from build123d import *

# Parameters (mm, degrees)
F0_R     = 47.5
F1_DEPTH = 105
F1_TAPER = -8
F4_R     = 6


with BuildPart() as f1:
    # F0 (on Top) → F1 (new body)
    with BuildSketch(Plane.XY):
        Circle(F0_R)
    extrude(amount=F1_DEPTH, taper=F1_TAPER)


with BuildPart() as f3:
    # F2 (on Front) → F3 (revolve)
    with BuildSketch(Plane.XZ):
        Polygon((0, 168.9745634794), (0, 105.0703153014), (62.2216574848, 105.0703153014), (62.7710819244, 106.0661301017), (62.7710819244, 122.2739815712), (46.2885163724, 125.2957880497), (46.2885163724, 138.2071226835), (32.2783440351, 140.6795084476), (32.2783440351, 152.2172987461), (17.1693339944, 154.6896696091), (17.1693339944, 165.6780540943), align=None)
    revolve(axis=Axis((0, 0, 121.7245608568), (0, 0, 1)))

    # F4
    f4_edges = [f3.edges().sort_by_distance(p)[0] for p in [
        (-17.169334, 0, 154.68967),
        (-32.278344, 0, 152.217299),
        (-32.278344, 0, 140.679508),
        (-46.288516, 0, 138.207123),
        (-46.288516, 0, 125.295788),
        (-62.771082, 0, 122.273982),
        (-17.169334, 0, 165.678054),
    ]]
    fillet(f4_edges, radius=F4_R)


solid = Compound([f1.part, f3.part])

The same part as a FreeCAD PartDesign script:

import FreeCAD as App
import Part
import Sketcher

V = App.Vector
Q = App.Units.Quantity


def edges_at(feature, points):
    """Names of the edges that pass closest to the given points."""
    edges = feature.Shape.Edges
    near = lambda p: min(range(len(edges)), key=lambda i: edges[i].distToShape(Part.Vertex(*p))[0])
    return sorted({f"Edge{near(p) + 1}" for p in points})

doc = App.newDocument("Part")
body = doc.addObject("PartDesign::Body", "Body")

sketch1 = body.newObject("Sketcher::SketchObject", "Sketch")
sketch1.AttachmentSupport = (doc.getObject("XY_Plane"), [""])
sketch1.MapMode = "FlatFace"
sketch1.addGeometry(Part.Circle(V(0, 0, 0), V(0, 0, 1), 48), False)
sketch1.addConstraint([
    Sketcher.Constraint("Coincident", 0, 3, -1, 1),
    Sketcher.Constraint("Diameter", 0, Q("95 mm")),
])
pad1 = body.newObject("PartDesign::Pad", "Pad")
pad1.Profile = sketch1
pad1.Length = 105
pad1.TaperAngle = 8
body2 = doc.addObject("PartDesign::Body", "Body001")

sketch2 = body2.newObject("Sketcher::SketchObject", "Sketch001")
sketch2.AttachmentSupport = (doc.getObject("XZ_Plane001"), [""])
sketch2.MapMode = "FlatFace"
sketch2.addGeometry([
    Part.LineSegment(V(0, 169, 0), V(0, 105.1, 0)),
    Part.LineSegment(V(0, 105.1, 0), V(62.2, 105.1, 0)),
    Part.LineSegment(V(62.2, 105.1, 0), V(62.8, 106.1, 0)),
    Part.LineSegment(V(62.8, 106.1, 0), V(62.8, 122.3, 0)),
    Part.LineSegment(V(62.8, 122.3, 0), V(46.3, 125.3, 0)),
    Part.LineSegment(V(46.3, 125.3, 0), V(46.3, 138.2, 0)),
    Part.LineSegment(V(46.3, 138.2, 0), V(32.3, 140.7, 0)),
    Part.LineSegment(V(32.3, 140.7, 0), V(32.3, 152.2, 0)),
    Part.LineSegment(V(32.3, 152.2, 0), V(17.2, 154.7, 0)),
    Part.LineSegment(V(17.2, 154.7, 0), V(17.2, 165.7, 0)),
    Part.LineSegment(V(17.2, 165.7, 0), V(0, 169, 0)),
], False)
sketch2.addConstraint([
    Sketcher.Constraint("Coincident", 0, 2, 1, 1),
    Sketcher.Constraint("Coincident", 1, 2, 2, 1),
    Sketcher.Constraint("Coincident", 2, 2, 3, 1),
    Sketcher.Constraint("Coincident", 3, 2, 4, 1),
    Sketcher.Constraint("Coincident", 4, 2, 5, 1),
    Sketcher.Constraint("Coincident", 5, 2, 6, 1),
    Sketcher.Constraint("Coincident", 6, 2, 7, 1),
    Sketcher.Constraint("Coincident", 7, 2, 8, 1),
    Sketcher.Constraint("Coincident", 8, 2, 9, 1),
    Sketcher.Constraint("Coincident", 9, 2, 10, 1),
    Sketcher.Constraint("Coincident", 10, 2, 0, 1),
    Sketcher.Constraint("Vertical", 0),
    Sketcher.Constraint("Horizontal", 1),
    Sketcher.Constraint("Vertical", 3),
    Sketcher.Constraint("Vertical", 5),
    Sketcher.Constraint("Vertical", 7),
    Sketcher.Constraint("Vertical", 9),
    Sketcher.Constraint("PointOnObject", 0, 2, -2),
    Sketcher.Constraint("DistanceY", 0, 2, 0, 1, Q("63.904248 mm")),
    Sketcher.Constraint("DistanceY", 3, 1, 3, 2, Q("16.207851 mm")),
    Sketcher.Constraint("DistanceY", 7, 1, 7, 2, Q("11.53779 mm")),
    Sketcher.Constraint("DistanceY", -1, 1, 7, 2, Q("152.217299 mm")),
    Sketcher.Constraint("Distance", 6, Q("14.226652 mm")),
    Sketcher.Constraint("DistanceX", 1, 1, 1, 2, Q("62.221657 mm")),
    Sketcher.Constraint("DistanceY", 5, 1, 5, 2, Q("12.911335 mm")),
    Sketcher.Constraint("DistanceY", 9, 1, 9, 2, Q("10.988384 mm")),
    Sketcher.Constraint("DistanceX", -1, 1, 2, 2, Q("62.771082 mm")),
    Sketcher.Constraint("DistanceY", -1, 1, 2, 2, Q("106.06613 mm")),
    Sketcher.Constraint("DistanceY", -1, 1, 4, 2, Q("125.295788 mm")),
    Sketcher.Constraint("DistanceY", -1, 1, 8, 2, Q("154.68967 mm")),
    Sketcher.Constraint("DistanceX", 4, 2, 1, 2, Q("15.933141 mm")),
    Sketcher.Constraint("DistanceX", 8, 2, 7, 2, Q("15.10901 mm")),
    Sketcher.Constraint("DistanceY", 9, 2, 10, 2, Q("3.296509 mm")),
])
revolution = body2.newObject("PartDesign::Revolution", "Revolution")
revolution.Profile = sketch2
revolution.ReferenceAxis = (sketch2, ["V_Axis"])
revolution.Angle = 360
doc.recompute()

fillet = body2.newObject("PartDesign::Fillet", "Fillet")
fillet.Base = (revolution, edges_at(revolution, [
    (-17.169, 0, 154.69),
    (-32.278, 0, 152.217),
    (-32.278, 0, 140.68),
    (-46.289, 0, 138.207),
    (-46.289, 0, 125.296),
    (-62.771, 0, 122.274),
    (-17.169, 0, 165.678),
]))
fillet.Radius = 6

doc.recompute()
